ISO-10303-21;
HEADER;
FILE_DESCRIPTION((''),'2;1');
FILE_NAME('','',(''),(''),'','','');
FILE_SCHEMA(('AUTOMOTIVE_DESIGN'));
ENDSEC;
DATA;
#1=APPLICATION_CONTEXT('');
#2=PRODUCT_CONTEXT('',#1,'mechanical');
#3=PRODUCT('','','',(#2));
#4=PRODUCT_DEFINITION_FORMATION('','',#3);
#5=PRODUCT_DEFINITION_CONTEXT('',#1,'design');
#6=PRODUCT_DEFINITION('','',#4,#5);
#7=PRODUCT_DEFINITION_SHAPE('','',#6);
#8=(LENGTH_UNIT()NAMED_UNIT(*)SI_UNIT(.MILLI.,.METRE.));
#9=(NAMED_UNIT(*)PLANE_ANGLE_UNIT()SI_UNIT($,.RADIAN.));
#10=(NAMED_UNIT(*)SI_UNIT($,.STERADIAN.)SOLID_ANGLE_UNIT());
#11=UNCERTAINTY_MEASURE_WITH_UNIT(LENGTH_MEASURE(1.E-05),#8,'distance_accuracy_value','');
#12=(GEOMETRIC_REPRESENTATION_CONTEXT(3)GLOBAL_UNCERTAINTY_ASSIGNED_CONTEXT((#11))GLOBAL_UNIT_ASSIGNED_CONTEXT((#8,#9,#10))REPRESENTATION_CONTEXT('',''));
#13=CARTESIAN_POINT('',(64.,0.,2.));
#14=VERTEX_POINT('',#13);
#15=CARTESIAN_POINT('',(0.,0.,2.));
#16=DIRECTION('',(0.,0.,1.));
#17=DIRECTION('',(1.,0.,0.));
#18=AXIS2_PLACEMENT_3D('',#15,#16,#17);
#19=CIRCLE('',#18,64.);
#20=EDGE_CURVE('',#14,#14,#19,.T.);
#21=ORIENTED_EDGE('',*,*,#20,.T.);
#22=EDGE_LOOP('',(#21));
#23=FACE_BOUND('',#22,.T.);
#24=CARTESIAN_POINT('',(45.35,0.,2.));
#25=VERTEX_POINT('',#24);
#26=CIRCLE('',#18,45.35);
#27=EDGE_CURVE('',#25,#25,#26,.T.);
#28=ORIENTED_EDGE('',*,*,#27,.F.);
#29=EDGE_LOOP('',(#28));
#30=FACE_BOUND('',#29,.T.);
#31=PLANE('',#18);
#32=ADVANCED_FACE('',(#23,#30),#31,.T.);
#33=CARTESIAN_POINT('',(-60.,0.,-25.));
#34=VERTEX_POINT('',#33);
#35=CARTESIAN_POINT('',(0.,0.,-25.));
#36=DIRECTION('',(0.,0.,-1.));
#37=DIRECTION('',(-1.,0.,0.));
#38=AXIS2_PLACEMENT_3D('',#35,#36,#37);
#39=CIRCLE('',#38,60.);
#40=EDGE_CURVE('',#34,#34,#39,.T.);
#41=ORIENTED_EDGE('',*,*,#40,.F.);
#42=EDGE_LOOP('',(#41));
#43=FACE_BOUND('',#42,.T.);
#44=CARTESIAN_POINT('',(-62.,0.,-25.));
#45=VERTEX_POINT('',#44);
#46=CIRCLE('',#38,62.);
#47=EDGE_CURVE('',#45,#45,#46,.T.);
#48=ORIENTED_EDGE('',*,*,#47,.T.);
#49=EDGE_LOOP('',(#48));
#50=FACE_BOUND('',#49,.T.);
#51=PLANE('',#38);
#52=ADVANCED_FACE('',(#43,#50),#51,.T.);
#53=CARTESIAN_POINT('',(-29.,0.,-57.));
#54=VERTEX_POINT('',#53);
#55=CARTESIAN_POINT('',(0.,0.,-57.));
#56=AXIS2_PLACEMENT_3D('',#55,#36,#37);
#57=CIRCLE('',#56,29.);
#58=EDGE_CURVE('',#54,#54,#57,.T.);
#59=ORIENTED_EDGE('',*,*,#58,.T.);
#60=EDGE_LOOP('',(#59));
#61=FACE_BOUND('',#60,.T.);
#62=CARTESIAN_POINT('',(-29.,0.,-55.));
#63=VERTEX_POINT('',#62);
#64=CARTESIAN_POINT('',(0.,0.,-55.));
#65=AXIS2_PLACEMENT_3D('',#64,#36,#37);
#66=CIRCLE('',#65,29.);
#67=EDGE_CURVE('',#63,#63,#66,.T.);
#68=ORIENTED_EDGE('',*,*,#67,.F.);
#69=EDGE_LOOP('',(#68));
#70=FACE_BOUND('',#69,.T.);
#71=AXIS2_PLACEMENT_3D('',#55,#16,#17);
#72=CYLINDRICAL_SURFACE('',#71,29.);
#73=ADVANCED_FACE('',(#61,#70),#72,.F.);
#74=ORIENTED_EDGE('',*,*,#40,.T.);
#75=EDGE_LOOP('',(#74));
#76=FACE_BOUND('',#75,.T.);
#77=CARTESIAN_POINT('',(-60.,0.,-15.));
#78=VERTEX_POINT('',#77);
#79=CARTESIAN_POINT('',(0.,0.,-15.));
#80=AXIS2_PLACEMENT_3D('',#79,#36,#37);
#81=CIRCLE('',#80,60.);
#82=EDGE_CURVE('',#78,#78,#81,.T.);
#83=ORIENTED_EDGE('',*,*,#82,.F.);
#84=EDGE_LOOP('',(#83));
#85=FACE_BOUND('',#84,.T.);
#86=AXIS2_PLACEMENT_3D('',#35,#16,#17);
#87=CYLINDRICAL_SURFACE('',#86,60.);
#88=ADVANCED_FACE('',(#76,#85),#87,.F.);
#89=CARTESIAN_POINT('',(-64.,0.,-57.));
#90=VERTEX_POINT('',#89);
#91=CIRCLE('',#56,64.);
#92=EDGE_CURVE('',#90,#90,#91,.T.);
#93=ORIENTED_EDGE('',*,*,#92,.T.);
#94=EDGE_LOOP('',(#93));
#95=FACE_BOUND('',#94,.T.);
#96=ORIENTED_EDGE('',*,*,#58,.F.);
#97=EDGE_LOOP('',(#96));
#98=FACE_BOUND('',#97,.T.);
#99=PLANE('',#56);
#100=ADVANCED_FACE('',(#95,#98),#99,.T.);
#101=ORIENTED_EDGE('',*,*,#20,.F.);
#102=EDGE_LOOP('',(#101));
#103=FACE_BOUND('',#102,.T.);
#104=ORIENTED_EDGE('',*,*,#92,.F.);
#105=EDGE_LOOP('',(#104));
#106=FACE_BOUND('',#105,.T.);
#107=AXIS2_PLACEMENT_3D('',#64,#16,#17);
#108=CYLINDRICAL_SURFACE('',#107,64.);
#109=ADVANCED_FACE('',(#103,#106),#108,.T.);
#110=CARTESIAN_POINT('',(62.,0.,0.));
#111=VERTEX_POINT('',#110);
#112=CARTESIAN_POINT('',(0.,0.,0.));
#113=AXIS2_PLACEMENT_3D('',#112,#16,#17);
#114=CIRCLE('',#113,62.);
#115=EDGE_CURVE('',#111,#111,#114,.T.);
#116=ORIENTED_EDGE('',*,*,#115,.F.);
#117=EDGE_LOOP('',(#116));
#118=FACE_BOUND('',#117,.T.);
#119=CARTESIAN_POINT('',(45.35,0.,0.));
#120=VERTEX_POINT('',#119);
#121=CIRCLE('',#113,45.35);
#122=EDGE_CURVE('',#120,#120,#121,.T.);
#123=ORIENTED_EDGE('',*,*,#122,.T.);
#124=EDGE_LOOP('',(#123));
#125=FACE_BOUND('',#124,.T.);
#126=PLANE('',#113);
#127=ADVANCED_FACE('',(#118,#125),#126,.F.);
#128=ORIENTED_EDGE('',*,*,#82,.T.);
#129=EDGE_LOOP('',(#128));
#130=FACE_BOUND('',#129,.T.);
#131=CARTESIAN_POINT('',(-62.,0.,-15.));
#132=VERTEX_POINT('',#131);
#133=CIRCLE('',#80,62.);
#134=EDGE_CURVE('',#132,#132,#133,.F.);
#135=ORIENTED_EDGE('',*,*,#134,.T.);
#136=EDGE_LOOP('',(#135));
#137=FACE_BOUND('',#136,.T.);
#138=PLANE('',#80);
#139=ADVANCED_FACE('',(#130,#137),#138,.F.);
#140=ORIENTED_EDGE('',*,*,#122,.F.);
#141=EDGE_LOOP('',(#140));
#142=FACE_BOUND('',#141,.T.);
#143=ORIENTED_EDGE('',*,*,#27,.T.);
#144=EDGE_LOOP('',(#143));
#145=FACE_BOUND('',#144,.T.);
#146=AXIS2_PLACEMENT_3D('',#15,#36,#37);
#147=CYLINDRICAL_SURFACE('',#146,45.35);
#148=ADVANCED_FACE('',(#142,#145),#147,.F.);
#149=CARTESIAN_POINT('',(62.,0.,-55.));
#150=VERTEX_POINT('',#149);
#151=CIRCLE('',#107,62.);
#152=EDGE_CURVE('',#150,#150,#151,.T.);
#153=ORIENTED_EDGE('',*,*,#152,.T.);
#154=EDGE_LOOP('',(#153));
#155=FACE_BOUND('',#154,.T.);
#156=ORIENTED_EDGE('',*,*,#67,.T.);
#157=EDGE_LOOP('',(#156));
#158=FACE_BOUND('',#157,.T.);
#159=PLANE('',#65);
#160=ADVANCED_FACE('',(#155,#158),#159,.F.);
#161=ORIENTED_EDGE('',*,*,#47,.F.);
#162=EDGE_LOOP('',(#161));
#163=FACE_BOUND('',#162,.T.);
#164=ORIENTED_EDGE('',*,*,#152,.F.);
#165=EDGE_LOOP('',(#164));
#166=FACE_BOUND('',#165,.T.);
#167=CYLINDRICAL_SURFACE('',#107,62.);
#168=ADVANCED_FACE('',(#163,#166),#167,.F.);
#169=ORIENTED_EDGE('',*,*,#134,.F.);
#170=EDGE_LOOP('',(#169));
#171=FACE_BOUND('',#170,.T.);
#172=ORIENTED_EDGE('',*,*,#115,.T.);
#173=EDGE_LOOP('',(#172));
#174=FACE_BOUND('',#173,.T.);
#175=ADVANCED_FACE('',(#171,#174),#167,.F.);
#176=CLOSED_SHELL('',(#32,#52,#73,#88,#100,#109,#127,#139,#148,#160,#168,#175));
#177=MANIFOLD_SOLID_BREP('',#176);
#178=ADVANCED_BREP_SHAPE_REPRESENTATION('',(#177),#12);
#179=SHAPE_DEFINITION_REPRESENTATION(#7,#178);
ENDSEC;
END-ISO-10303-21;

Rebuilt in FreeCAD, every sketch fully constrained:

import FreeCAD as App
import Part
import Sketcher
from FreeCAD import Vector
Q = App.Units.Quantity

doc = App.newDocument("Part")
body = doc.addObject("PartDesign::Body", "Body")

# Sketch on XY plane
sketch1 = doc.addObject("Sketcher::SketchObject", "Sketch")
body.addObject(sketch1)
sketch1.AttachmentSupport = (doc.XY_Plane, [""])
sketch1.MapMode = "FlatFace"
sketch1.addGeometry([
    Part.Circle(Vector(0, 0, 0), Vector(0, 0, 1), 64),
    Part.Circle(Vector(0, 0, 0), Vector(0, 0, 1), 62),
], False)
sketch1.addConstraint([
    Sketcher.Constraint("Coincident", 0, 3, -1, 1),
    Sketcher.Constraint("Coincident", 1, 3, -1, 1),
    Sketcher.Constraint("Diameter", 0, Q("128 mm")),
    Sketcher.Constraint("Diameter", 1, Q("124 mm")),
])
pad1 = doc.addObject("PartDesign::Pad", "Pad")
body.addObject(pad1)
pad1.Profile = sketch1
pad1.Length = 55
pad1.Reversed = True

# Sketch on XY plane
sketch2 = doc.addObject("Sketcher::SketchObject", "Sketch001")
body.addObject(sketch2)
sketch2.AttachmentSupport = (doc.XY_Plane, [""])
sketch2.MapMode = "FlatFace"
sketch2.AttachmentOffset = App.Placement(Vector(0, 0, -15), App.Rotation())
sketch2.addGeometry([
    Part.Circle(Vector(0, 0, 0), Vector(0, 0, 1), 62),
    Part.Circle(Vector(0, 0, 0), Vector(0, 0, 1), 60),
], False)
sketch2.addConstraint([
    Sketcher.Constraint("Coincident", 0, 3, -1, 1),
    Sketcher.Constraint("Coincident", 1, 3, -1, 1),
    Sketcher.Constraint("Diameter", 0, Q("124 mm")),
    Sketcher.Constraint("Diameter", 1, Q("120 mm")),
])
pad2 = doc.addObject("PartDesign::Pad", "Pad001")
body.addObject(pad2)
pad2.Profile = sketch2
pad2.Length = 10
pad2.Reversed = True

# Sketch on XY plane
sketch3 = doc.addObject("Sketcher::SketchObject", "Sketch002")
body.addObject(sketch3)
sketch3.AttachmentSupport = (doc.XY_Plane, [""])
sketch3.MapMode = "FlatFace"
sketch3.addGeometry([
    Part.Circle(Vector(0, 0, 0), Vector(0, 0, 1), 64),
    Part.Circle(Vector(0, 0, 0), Vector(0, 0, 1), 45.35),
], False)
sketch3.addConstraint([
    Sketcher.Constraint("Coincident", 0, 3, -1, 1),
    Sketcher.Constraint("Coincident", 1, 3, -1, 1),
    Sketcher.Constraint("Diameter", 0, Q("128 mm")),
    Sketcher.Constraint("Diameter", 1, Q("90.7 mm")),
])
pad3 = doc.addObject("PartDesign::Pad", "Pad002")
body.addObject(pad3)
pad3.Profile = sketch3
pad3.Length = 2

# Sketch on XY plane
sketch4 = doc.addObject("Sketcher::SketchObject", "Sketch003")
body.addObject(sketch4)
sketch4.AttachmentSupport = (doc.XY_Plane, [""])
sketch4.MapMode = "FlatFace"
sketch4.AttachmentOffset = App.Placement(Vector(0, 0, -55), App.Rotation())
sketch4.addGeometry([
    Part.Circle(Vector(0, 0, 0), Vector(0, 0, 1), 64),
    Part.Circle(Vector(0, 0, 0), Vector(0, 0, 1), 29),
], False)
sketch4.addConstraint([
    Sketcher.Constraint("Coincident", 0, 3, -1, 1),
    Sketcher.Constraint("Coincident", 1, 3, -1, 1),
    Sketcher.Constraint("Diameter", 0, Q("128 mm")),
    Sketcher.Constraint("Diameter", 1, Q("58 mm")),
])
pad4 = doc.addObject("PartDesign::Pad", "Pad003")
body.addObject(pad4)
pad4.Profile = sketch4
pad4.Length = 2
pad4.Reversed = True

doc.recompute()
